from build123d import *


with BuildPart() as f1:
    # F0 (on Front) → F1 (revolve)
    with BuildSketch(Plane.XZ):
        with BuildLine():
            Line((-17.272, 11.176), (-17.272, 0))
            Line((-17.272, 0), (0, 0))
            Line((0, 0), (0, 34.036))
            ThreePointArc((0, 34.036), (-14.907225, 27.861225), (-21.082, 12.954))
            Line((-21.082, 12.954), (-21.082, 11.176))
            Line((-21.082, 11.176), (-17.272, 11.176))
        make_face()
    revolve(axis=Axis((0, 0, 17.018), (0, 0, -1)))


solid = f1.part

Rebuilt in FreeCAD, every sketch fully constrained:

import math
import FreeCAD as App
import Part
import Sketcher
from FreeCAD import Vector
Q = App.Units.Quantity

doc = App.newDocument("Part")
params = doc.addObject("Spreadsheet::Sheet", "Params")
for row, (alias, value) in enumerate([
    ("sketch1_radius", "0.83 in"),
    ("sketch1_width", "0.68 in"),
    ("sketch1_height", "0.44 in"),
    ("sketch1_height2", "1.34 in"),
    ("revolution_angle", "360 deg"),
], start=1):
    params.set(f"A{row}", alias)
    params.set(f"B{row}", "=" + value)
    params.setAlias(f"B{row}", alias)

body = doc.addObject("PartDesign::Body", "Body")

# Sketch on XZ plane
sketch1 = body.newObject("Sketcher::SketchObject", "Sketch")
sketch1.AttachmentSupport = (doc.getObject("XZ_Plane"), [""])
sketch1.MapMode = "FlatFace"
sketch1.addGeometry([
    Part.LineSegment(Vector(-17.272, 11.176, 0), Vector(-17.272, 0, 0)),  # 0
    Part.LineSegment(Vector(-17.272, 0, 0), Vector(0, 0, 0)),  # 1
    Part.LineSegment(Vector(0, 0, 0), Vector(0, 34.036, 0)),  # 2
    Part.ArcOfCircle(Part.Circle(Vector(0.000001, 12.953999, 0), Vector(0, 0, 1), 21.082001), math.radians(90.000001), math.radians(179.999999)),  # 3
    Part.LineSegment(Vector(-21.082, 12.954, 0), Vector(-21.082, 11.176, 0)),  # 4
    Part.LineSegment(Vector(-21.082, 11.176, 0), Vector(-17.272, 11.176, 0)),  # 5
], False)
sketch1.addConstraint([
    Sketcher.Constraint("Coincident", 0, 2, 1, 1),
    Sketcher.Constraint("Coincident", 1, 2, 2, 1),
    Sketcher.Constraint("Coincident", 2, 2, 3, 1),
    Sketcher.Constraint("Tangent", 3, 2, 4, 1),
    Sketcher.Constraint("Coincident", 4, 2, 5, 1),
    Sketcher.Constraint("Coincident", 5, 2, 0, 1),
    Sketcher.Constraint("Vertical", 0),
    Sketcher.Constraint("Horizontal", 1),
    Sketcher.Constraint("Vertical", 2),
    Sketcher.Constraint("Vertical", 4),
    Sketcher.Constraint("Horizontal", 5),
    Sketcher.Constraint("Coincident", 1, 2, -1, 1),
    Sketcher.Constraint("PointOnObject", 3, 3, -2),
    Sketcher.Constraint("Radius", 3, Q("0.83 in")),
    Sketcher.Constraint("DistanceX", 1, 1, 1, 2, Q("0.68 in")),
    Sketcher.Constraint("DistanceY", 0, 2, 0, 1, Q("0.44 in")),
    Sketcher.Constraint("DistanceY", 2, 1, 2, 2, Q("1.34 in")),
])
sketch1.setExpression("Constraints[13]", "Params.sketch1_radius")
sketch1.setExpression("Constraints[14]", "Params.sketch1_width")
sketch1.setExpression("Constraints[15]", "Params.sketch1_height")
sketch1.setExpression("Constraints[16]", "Params.sketch1_height2")
revolution = body.newObject("PartDesign::Revolution", "Revolution")
revolution.Profile = sketch1
revolution.ReferenceAxis = (sketch1, ["V_Axis"])
revolution.setExpression("Angle", "Params.revolution_angle")

doc.recompute()
